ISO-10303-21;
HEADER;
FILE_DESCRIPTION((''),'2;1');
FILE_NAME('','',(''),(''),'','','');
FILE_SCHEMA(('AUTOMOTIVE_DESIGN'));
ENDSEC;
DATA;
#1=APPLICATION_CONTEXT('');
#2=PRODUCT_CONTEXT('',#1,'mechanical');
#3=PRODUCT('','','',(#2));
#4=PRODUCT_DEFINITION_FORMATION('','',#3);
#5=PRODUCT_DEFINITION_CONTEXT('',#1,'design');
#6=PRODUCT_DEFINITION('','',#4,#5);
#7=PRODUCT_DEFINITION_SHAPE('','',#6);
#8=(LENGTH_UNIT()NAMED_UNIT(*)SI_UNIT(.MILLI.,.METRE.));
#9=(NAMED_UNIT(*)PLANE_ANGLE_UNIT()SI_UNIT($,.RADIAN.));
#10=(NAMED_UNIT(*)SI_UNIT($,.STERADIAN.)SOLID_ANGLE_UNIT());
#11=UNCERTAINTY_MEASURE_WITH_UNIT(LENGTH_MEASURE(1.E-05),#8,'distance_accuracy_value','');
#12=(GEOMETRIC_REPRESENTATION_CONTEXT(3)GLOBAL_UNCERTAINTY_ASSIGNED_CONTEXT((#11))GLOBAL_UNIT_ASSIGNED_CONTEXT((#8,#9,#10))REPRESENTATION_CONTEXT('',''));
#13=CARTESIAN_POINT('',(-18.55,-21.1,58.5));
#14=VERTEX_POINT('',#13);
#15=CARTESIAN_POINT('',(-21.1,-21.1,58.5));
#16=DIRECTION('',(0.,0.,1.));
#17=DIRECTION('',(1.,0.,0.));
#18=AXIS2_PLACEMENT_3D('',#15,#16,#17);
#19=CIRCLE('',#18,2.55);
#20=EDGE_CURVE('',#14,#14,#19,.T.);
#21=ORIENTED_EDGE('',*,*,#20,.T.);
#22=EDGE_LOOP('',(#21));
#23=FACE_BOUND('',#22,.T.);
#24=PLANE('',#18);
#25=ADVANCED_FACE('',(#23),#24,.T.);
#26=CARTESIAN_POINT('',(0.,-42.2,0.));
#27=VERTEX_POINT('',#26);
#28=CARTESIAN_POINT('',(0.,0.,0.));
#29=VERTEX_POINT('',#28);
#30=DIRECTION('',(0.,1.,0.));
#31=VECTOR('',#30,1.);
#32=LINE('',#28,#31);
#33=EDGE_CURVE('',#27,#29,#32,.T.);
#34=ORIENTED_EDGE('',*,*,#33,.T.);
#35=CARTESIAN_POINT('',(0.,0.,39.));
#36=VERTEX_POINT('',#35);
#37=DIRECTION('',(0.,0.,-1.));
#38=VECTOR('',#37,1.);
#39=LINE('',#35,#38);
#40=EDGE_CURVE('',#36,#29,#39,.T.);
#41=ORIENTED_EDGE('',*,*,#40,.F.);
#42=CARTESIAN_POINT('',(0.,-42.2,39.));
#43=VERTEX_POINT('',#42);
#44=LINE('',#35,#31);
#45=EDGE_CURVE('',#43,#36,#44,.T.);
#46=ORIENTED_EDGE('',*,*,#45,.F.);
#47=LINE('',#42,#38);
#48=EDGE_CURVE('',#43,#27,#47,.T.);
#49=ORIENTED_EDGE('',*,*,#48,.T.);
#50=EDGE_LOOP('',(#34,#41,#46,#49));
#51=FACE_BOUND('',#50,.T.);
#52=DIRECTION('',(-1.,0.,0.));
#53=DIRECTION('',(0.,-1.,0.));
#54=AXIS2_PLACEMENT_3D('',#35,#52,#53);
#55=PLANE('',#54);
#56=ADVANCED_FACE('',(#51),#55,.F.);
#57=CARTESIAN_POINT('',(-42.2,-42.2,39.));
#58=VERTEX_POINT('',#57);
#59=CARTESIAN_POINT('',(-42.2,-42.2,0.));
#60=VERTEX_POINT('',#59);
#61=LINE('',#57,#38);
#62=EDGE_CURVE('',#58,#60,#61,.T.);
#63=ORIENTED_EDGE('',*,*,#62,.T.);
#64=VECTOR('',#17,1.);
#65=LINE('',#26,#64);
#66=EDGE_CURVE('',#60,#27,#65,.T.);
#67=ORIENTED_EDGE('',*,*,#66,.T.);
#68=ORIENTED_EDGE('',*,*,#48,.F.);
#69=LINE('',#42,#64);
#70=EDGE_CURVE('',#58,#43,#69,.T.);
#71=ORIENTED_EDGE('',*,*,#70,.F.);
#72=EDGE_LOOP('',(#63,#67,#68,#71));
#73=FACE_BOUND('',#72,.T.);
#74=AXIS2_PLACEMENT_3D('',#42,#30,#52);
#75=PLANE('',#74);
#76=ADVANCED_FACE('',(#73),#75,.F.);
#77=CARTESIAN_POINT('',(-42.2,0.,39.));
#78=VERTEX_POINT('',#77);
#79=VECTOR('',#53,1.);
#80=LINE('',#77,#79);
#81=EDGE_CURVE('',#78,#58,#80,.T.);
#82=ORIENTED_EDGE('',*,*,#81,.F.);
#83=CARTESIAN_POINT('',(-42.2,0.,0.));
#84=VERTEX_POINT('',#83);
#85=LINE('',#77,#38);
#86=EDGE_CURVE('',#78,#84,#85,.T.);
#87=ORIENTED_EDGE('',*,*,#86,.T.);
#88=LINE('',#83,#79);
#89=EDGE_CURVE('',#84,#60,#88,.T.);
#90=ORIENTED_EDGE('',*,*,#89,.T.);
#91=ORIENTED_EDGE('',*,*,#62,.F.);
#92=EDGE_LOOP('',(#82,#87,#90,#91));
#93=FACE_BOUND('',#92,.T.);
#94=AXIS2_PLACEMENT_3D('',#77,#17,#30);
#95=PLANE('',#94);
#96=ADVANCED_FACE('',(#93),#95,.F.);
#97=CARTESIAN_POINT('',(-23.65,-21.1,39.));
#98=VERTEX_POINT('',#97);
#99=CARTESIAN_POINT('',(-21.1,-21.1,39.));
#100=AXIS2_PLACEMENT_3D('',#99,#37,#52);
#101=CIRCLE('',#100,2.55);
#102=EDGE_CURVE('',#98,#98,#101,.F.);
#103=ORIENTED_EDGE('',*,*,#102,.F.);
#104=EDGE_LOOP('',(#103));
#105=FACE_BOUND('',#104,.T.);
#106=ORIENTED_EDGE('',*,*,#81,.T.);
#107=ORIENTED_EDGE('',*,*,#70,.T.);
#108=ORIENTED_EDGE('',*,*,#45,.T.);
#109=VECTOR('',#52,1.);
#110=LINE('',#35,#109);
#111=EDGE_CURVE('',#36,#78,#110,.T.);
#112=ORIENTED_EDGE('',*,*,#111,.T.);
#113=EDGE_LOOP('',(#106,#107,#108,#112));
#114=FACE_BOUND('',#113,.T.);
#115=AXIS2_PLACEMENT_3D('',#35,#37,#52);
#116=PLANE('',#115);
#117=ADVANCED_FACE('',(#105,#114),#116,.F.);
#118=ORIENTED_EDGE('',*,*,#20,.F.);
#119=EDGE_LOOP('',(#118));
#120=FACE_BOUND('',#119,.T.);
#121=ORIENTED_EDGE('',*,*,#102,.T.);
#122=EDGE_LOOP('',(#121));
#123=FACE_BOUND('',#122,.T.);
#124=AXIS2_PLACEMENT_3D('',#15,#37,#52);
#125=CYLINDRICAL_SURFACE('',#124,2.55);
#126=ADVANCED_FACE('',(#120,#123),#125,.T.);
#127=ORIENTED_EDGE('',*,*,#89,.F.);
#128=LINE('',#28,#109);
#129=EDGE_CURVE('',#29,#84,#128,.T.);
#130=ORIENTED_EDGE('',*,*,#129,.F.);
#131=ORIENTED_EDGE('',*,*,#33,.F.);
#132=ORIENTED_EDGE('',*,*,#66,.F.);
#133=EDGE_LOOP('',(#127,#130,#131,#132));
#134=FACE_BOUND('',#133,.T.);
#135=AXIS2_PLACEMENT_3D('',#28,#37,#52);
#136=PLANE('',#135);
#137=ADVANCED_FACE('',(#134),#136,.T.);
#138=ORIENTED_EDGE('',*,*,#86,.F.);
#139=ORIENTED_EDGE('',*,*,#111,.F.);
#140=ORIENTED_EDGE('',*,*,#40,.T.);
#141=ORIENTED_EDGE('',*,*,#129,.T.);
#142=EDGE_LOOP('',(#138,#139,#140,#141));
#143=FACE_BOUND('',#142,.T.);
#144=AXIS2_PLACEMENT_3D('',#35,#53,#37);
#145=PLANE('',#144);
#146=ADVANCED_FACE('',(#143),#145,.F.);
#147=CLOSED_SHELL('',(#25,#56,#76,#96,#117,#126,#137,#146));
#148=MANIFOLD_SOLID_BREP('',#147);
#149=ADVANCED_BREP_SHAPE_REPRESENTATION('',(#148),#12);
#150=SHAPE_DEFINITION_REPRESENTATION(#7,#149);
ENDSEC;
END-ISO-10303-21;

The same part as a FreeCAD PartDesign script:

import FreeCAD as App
import Part
import Sketcher
from FreeCAD import Vector

doc = App.newDocument("Part")
body = doc.addObject("PartDesign::Body", "Body")

sketch1 = body.newObject("Sketcher::SketchObject", "Sketch")
sketch1.AttachmentSupport = (doc.getObject("XY_Plane"), [""])
sketch1.MapMode = "FlatFace"
sketch1.addGeometry([
    Part.LineSegment(Vector(-42, 0, 0), Vector(-42, -42, 0)),
    Part.LineSegment(Vector(-42, -42, 0), Vector(0, -42, 0)),
    Part.LineSegment(Vector(0, -42, 0), Vector(0, 0, 0)),
    Part.LineSegment(Vector(0, 0, 0), Vector(-42, 0, 0)),
], False)
sketch1.addConstraint([
    Sketcher.Constraint("Coincident", 0, 2, 1, 1),
    Sketcher.Constraint("Coincident", 1, 2, 2, 1),
    Sketcher.Constraint("Coincident", 2, 2, 3, 1),
    Sketcher.Constraint("Coincident", 3, 2, 0, 1),
    Sketcher.Constraint("Vertical", 0),
    Sketcher.Constraint("Horizontal", 1),
    Sketcher.Constraint("Vertical", 2),
    Sketcher.Constraint("Horizontal", 3),
    Sketcher.Constraint("Coincident", 2, 2, -1, 1),
    Sketcher.Constraint("Equal", 3, 0),
    Sketcher.Constraint("DistanceX", 1, 1, 1, 2, 42.2),
])
pad1 = body.newObject("PartDesign::Pad", "Pad")
pad1.Profile = sketch1
pad1.Length = 39

sketch2 = body.newObject("Sketcher::SketchObject", "Sketch001")
sketch2.AttachmentSupport = (doc.getObject("XY_Plane"), [""])
sketch2.MapMode = "FlatFace"
sketch2.AttachmentOffset = App.Placement(Vector(0, 0, 39), App.Rotation())
sketch2.addGeometry(Part.Circle(Vector(-21.1, -21.1, 0), Vector(0, 0, 1), 2.5), False)
sketch2.addConstraint([
    Sketcher.Constraint("Diameter", 0, 5.1),
    Sketcher.Constraint("DistanceX", 0, 3, -1, 1, 21.1),
    Sketcher.Constraint("DistanceY", 0, 3, -1, 1, 21.1),
])
pad2 = body.newObject("PartDesign::Pad", "Pad001")
pad2.Profile = sketch2
pad2.Length = 19.5

doc.recompute()
